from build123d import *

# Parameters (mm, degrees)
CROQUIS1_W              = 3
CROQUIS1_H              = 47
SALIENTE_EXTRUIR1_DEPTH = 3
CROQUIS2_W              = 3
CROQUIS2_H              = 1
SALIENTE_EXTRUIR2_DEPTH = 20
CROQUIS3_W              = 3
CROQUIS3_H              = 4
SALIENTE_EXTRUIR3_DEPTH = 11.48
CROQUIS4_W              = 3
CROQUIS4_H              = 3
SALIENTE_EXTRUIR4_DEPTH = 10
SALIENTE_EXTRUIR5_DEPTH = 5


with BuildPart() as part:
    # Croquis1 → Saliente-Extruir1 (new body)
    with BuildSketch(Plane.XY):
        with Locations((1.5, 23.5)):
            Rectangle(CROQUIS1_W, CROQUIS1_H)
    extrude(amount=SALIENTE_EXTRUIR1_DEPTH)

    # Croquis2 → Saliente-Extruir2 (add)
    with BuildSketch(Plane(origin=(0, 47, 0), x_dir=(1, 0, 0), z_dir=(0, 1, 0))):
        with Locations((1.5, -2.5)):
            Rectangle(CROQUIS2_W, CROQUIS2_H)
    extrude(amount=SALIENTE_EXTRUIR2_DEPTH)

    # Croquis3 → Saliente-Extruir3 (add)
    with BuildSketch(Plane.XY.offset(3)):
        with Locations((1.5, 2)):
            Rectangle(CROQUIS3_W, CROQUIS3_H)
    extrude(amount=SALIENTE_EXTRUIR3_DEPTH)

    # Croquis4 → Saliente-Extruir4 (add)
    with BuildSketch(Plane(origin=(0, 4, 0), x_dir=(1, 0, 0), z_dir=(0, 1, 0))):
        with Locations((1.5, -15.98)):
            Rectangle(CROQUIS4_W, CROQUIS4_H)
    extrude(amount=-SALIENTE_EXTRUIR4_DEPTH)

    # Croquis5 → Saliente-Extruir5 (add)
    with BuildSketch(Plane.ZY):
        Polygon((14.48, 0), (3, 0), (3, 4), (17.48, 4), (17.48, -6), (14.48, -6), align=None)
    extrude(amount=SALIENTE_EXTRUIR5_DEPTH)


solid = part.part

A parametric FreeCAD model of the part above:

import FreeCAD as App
import Part
import Sketcher
Q = App.Units.Quantity

doc = App.newDocument("Part")
body = doc.addObject("PartDesign::Body", "Body")

sketch1 = body.newObject("Sketcher::SketchObject", "Sketch")
sketch1.AttachmentSupport = (doc.getObject("XY_Plane"), [""])
sketch1.MapMode = "FlatFace"
sketch1.addGeometry([
    Part.LineSegment(App.Vector(0, 47, 0), App.Vector(0, 0, 0)),
    Part.LineSegment(App.Vector(0, 0, 0), App.Vector(3, 0, 0)),
    Part.LineSegment(App.Vector(3, 0, 0), App.Vector(3, 47, 0)),
    Part.LineSegment(App.Vector(3, 47, 0), App.Vector(0, 47, 0)),
], False)
sketch1.addConstraint([
    Sketcher.Constraint("Coincident", 0, 2, 1, 1),
    Sketcher.Constraint("Coincident", 1, 2, 2, 1),
    Sketcher.Constraint("Coincident", 2, 2, 3, 1),
    Sketcher.Constraint("Coincident", 3, 2, 0, 1),
    Sketcher.Constraint("Vertical", 0),
    Sketcher.Constraint("Horizontal", 1),
    Sketcher.Constraint("Vertical", 2),
    Sketcher.Constraint("Horizontal", 3),
    Sketcher.Constraint("Coincident", 0, 2, -1, 1),
    Sketcher.Constraint("DistanceX", 1, 1, 1, 2, Q("3 mm")),
    Sketcher.Constraint("DistanceY", 0, 2, 0, 1, Q("47 mm")),
])
pad1 = body.newObject("PartDesign::Pad", "Pad")
pad1.Profile = sketch1
pad1.Length = 3

sketch2 = body.newObject("Sketcher::SketchObject", "Sketch001")
sketch2.AttachmentSupport = (doc.getObject("XZ_Plane"), [""])
sketch2.MapMode = "FlatFace"
sketch2.AttachmentOffset = App.Placement(App.Vector(0, 0, -47), App.Rotation())
sketch2.addGeometry([
    Part.LineSegment(App.Vector(0, 2, 0), App.Vector(0, 3, 0)),
    Part.LineSegment(App.Vector(0, 3, 0), App.Vector(3, 3, 0)),
    Part.LineSegment(App.Vector(3, 3, 0), App.Vector(3, 2, 0)),
    Part.LineSegment(App.Vector(3, 2, 0), App.Vector(0, 2, 0)),
], False)
sketch2.addConstraint([
    Sketcher.Constraint("Coincident", 0, 2, 1, 1),
    Sketcher.Constraint("Coincident", 1, 2, 2, 1),
    Sketcher.Constraint("Coincident", 2, 2, 3, 1),
    Sketcher.Constraint("Coincident", 3, 2, 0, 1),
    Sketcher.Constraint("Vertical", 0),
    Sketcher.Constraint("Horizontal", 1),
    Sketcher.Constraint("Vertical", 2),
    Sketcher.Constraint("Horizontal", 3),
    Sketcher.Constraint("PointOnObject", 0, 2, -2),
    Sketcher.Constraint("DistanceX", 1, 1, 1, 2, Q("3 mm")),
    Sketcher.Constraint("DistanceY", 0, 1, 0, 2, Q("1 mm")),
    Sketcher.Constraint("DistanceY", -1, 1, 0, 2, Q("3 mm")),
])
pad2 = body.newObject("PartDesign::Pad", "Pad001")
pad2.Profile = sketch2
pad2.Length = 20
pad2.Reversed = True

sketch3 = body.newObject("Sketcher::SketchObject", "Sketch002")
sketch3.AttachmentSupport = (doc.getObject("XY_Plane"), [""])
sketch3.MapMode = "FlatFace"
sketch3.AttachmentOffset = App.Placement(App.Vector(0, 0, 3), App.Rotation())
sketch3.addGeometry([
    Part.LineSegment(App.Vector(0, 4, 0), App.Vector(0, 0, 0)),
    Part.LineSegment(App.Vector(0, 0, 0), App.Vector(3, 0, 0)),
    Part.LineSegment(App.Vector(3, 0, 0), App.Vector(3, 4, 0)),
    Part.LineSegment(App.Vector(3, 4, 0), App.Vector(0, 4, 0)),
], False)
sketch3.addConstraint([
    Sketcher.Constraint("Coincident", 0, 2, 1, 1),
    Sketcher.Constraint("Coincident", 1, 2, 2, 1),
    Sketcher.Constraint("Coincident", 2, 2, 3, 1),
    Sketcher.Constraint("Coincident", 3, 2, 0, 1),
    Sketcher.Constraint("Vertical", 0),
    Sketcher.Constraint("Horizontal", 1),
    Sketcher.Constraint("Vertical", 2),
    Sketcher.Constraint("Horizontal", 3),
    Sketcher.Constraint("Coincident", 0, 2, -1, 1),
    Sketcher.Constraint("DistanceX", 1, 1, 1, 2, Q("3 mm")),
    Sketcher.Constraint("DistanceY", 0, 2, 0, 1, Q("4 mm")),
])
pad3 = body.newObject("PartDesign::Pad", "Pad002")
pad3.Profile = sketch3
pad3.Length = 11.48

sketch4 = body.newObject("Sketcher::SketchObject", "Sketch003")
sketch4.AttachmentSupport = (doc.getObject("XZ_Plane"), [""])
sketch4.MapMode = "FlatFace"
sketch4.AttachmentOffset = App.Placement(App.Vector(0, 0, -4), App.Rotation())
sketch4.addGeometry([
    Part.LineSegment(App.Vector(0, 14.48, 0), App.Vector(0, 17.48, 0)),
    Part.LineSegment(App.Vector(0, 17.48, 0), App.Vector(3, 17.48, 0)),
    Part.LineSegment(App.Vector(3, 17.48, 0), App.Vector(3, 14.48, 0)),
    Part.LineSegment(App.Vector(3, 14.48, 0), App.Vector(0, 14.48, 0)),
], False)
sketch4.addConstraint([
    Sketcher.Constraint("Coincident", 0, 2, 1, 1),
    Sketcher.Constraint("Coincident", 1, 2, 2, 1),
    Sketcher.Constraint("Coincident", 2, 2, 3, 1),
    Sketcher.Constraint("Coincident", 3, 2, 0, 1),
    Sketcher.Constraint("Vertical", 0),
    Sketcher.Constraint("Horizontal", 1),
    Sketcher.Constraint("Vertical", 2),
    Sketcher.Constraint("Horizontal", 3),
    Sketcher.Constraint("PointOnObject", 0, 2, -2),
    Sketcher.Constraint("Equal", 3, 0),
    Sketcher.Constraint("DistanceX", 1, 1, 1, 2, Q("3 mm")),
    Sketcher.Constraint("DistanceY", -1, 1, 0, 2, Q("17.48 mm")),
])
pad4 = body.newObject("PartDesign::Pad", "Pad003")
pad4.Profile = sketch4
pad4.Length = 10

sketch5 = body.newObject("Sketcher::SketchObject", "Sketch004")
sketch5.AttachmentSupport = (doc.getObject("YZ_Plane"), [""])
sketch5.MapMode = "FlatFace"
sketch5.addGeometry([
    Part.LineSegment(App.Vector(0, 3, 0), App.Vector(0, 14.48, 0)),
    Part.LineSegment(App.Vector(0, 14.48, 0), App.Vector(-6, 14.48, 0)),
    Part.LineSegment(App.Vector(-6, 14.48, 0), App.Vector(-6, 17.48, 0)),
    Part.LineSegment(App.Vector(-6, 17.48, 0), App.Vector(4, 17.48, 0)),
    Part.LineSegment(App.Vector(4, 17.48, 0), App.Vector(4, 3, 0)),
    Part.LineSegment(App.Vector(4, 3, 0), App.Vector(0, 3, 0)),
], False)
sketch5.addConstraint([
    Sketcher.Constraint("Coincident", 0, 2, 1, 1),
    Sketcher.Constraint("Coincident", 1, 2, 2, 1),
    Sketcher.Constraint("Coincident", 2, 2, 3, 1),
    Sketcher.Constraint("Coincident", 3, 2, 4, 1),
    Sketcher.Constraint("Coincident", 4, 2, 5, 1),
    Sketcher.Constraint("Coincident", 5, 2, 0, 1),
    Sketcher.Constraint("Vertical", 0),
    Sketcher.Constraint("Horizontal", 1),
    Sketcher.Constraint("Vertical", 2),
    Sketcher.Constraint("Horizontal", 3),
    Sketcher.Constraint("Vertical", 4),
    Sketcher.Constraint("Horizontal", 5),
    Sketcher.Constraint("PointOnObject", 0, 2, -2),
    Sketcher.Constraint("DistanceX", 1, 2, 1, 1, Q("6 mm")),
    Sketcher.Constraint("DistanceX", 3, 1, 3, 2, Q("10 mm")),
    Sketcher.Constraint("DistanceY", 2, 1, 2, 2, Q("3 mm")),
    Sketcher.Constraint("DistanceY", -1, 1, 4, 2, Q("3 mm")),
    Sketcher.Constraint("DistanceY", 0, 1, 0, 2, Q("11.48 mm")),
])
pad5 = body.newObject("PartDesign::Pad", "Pad004")
pad5.Profile = sketch5
pad5.Length = 5
pad5.Reversed = True

doc.recompute()
